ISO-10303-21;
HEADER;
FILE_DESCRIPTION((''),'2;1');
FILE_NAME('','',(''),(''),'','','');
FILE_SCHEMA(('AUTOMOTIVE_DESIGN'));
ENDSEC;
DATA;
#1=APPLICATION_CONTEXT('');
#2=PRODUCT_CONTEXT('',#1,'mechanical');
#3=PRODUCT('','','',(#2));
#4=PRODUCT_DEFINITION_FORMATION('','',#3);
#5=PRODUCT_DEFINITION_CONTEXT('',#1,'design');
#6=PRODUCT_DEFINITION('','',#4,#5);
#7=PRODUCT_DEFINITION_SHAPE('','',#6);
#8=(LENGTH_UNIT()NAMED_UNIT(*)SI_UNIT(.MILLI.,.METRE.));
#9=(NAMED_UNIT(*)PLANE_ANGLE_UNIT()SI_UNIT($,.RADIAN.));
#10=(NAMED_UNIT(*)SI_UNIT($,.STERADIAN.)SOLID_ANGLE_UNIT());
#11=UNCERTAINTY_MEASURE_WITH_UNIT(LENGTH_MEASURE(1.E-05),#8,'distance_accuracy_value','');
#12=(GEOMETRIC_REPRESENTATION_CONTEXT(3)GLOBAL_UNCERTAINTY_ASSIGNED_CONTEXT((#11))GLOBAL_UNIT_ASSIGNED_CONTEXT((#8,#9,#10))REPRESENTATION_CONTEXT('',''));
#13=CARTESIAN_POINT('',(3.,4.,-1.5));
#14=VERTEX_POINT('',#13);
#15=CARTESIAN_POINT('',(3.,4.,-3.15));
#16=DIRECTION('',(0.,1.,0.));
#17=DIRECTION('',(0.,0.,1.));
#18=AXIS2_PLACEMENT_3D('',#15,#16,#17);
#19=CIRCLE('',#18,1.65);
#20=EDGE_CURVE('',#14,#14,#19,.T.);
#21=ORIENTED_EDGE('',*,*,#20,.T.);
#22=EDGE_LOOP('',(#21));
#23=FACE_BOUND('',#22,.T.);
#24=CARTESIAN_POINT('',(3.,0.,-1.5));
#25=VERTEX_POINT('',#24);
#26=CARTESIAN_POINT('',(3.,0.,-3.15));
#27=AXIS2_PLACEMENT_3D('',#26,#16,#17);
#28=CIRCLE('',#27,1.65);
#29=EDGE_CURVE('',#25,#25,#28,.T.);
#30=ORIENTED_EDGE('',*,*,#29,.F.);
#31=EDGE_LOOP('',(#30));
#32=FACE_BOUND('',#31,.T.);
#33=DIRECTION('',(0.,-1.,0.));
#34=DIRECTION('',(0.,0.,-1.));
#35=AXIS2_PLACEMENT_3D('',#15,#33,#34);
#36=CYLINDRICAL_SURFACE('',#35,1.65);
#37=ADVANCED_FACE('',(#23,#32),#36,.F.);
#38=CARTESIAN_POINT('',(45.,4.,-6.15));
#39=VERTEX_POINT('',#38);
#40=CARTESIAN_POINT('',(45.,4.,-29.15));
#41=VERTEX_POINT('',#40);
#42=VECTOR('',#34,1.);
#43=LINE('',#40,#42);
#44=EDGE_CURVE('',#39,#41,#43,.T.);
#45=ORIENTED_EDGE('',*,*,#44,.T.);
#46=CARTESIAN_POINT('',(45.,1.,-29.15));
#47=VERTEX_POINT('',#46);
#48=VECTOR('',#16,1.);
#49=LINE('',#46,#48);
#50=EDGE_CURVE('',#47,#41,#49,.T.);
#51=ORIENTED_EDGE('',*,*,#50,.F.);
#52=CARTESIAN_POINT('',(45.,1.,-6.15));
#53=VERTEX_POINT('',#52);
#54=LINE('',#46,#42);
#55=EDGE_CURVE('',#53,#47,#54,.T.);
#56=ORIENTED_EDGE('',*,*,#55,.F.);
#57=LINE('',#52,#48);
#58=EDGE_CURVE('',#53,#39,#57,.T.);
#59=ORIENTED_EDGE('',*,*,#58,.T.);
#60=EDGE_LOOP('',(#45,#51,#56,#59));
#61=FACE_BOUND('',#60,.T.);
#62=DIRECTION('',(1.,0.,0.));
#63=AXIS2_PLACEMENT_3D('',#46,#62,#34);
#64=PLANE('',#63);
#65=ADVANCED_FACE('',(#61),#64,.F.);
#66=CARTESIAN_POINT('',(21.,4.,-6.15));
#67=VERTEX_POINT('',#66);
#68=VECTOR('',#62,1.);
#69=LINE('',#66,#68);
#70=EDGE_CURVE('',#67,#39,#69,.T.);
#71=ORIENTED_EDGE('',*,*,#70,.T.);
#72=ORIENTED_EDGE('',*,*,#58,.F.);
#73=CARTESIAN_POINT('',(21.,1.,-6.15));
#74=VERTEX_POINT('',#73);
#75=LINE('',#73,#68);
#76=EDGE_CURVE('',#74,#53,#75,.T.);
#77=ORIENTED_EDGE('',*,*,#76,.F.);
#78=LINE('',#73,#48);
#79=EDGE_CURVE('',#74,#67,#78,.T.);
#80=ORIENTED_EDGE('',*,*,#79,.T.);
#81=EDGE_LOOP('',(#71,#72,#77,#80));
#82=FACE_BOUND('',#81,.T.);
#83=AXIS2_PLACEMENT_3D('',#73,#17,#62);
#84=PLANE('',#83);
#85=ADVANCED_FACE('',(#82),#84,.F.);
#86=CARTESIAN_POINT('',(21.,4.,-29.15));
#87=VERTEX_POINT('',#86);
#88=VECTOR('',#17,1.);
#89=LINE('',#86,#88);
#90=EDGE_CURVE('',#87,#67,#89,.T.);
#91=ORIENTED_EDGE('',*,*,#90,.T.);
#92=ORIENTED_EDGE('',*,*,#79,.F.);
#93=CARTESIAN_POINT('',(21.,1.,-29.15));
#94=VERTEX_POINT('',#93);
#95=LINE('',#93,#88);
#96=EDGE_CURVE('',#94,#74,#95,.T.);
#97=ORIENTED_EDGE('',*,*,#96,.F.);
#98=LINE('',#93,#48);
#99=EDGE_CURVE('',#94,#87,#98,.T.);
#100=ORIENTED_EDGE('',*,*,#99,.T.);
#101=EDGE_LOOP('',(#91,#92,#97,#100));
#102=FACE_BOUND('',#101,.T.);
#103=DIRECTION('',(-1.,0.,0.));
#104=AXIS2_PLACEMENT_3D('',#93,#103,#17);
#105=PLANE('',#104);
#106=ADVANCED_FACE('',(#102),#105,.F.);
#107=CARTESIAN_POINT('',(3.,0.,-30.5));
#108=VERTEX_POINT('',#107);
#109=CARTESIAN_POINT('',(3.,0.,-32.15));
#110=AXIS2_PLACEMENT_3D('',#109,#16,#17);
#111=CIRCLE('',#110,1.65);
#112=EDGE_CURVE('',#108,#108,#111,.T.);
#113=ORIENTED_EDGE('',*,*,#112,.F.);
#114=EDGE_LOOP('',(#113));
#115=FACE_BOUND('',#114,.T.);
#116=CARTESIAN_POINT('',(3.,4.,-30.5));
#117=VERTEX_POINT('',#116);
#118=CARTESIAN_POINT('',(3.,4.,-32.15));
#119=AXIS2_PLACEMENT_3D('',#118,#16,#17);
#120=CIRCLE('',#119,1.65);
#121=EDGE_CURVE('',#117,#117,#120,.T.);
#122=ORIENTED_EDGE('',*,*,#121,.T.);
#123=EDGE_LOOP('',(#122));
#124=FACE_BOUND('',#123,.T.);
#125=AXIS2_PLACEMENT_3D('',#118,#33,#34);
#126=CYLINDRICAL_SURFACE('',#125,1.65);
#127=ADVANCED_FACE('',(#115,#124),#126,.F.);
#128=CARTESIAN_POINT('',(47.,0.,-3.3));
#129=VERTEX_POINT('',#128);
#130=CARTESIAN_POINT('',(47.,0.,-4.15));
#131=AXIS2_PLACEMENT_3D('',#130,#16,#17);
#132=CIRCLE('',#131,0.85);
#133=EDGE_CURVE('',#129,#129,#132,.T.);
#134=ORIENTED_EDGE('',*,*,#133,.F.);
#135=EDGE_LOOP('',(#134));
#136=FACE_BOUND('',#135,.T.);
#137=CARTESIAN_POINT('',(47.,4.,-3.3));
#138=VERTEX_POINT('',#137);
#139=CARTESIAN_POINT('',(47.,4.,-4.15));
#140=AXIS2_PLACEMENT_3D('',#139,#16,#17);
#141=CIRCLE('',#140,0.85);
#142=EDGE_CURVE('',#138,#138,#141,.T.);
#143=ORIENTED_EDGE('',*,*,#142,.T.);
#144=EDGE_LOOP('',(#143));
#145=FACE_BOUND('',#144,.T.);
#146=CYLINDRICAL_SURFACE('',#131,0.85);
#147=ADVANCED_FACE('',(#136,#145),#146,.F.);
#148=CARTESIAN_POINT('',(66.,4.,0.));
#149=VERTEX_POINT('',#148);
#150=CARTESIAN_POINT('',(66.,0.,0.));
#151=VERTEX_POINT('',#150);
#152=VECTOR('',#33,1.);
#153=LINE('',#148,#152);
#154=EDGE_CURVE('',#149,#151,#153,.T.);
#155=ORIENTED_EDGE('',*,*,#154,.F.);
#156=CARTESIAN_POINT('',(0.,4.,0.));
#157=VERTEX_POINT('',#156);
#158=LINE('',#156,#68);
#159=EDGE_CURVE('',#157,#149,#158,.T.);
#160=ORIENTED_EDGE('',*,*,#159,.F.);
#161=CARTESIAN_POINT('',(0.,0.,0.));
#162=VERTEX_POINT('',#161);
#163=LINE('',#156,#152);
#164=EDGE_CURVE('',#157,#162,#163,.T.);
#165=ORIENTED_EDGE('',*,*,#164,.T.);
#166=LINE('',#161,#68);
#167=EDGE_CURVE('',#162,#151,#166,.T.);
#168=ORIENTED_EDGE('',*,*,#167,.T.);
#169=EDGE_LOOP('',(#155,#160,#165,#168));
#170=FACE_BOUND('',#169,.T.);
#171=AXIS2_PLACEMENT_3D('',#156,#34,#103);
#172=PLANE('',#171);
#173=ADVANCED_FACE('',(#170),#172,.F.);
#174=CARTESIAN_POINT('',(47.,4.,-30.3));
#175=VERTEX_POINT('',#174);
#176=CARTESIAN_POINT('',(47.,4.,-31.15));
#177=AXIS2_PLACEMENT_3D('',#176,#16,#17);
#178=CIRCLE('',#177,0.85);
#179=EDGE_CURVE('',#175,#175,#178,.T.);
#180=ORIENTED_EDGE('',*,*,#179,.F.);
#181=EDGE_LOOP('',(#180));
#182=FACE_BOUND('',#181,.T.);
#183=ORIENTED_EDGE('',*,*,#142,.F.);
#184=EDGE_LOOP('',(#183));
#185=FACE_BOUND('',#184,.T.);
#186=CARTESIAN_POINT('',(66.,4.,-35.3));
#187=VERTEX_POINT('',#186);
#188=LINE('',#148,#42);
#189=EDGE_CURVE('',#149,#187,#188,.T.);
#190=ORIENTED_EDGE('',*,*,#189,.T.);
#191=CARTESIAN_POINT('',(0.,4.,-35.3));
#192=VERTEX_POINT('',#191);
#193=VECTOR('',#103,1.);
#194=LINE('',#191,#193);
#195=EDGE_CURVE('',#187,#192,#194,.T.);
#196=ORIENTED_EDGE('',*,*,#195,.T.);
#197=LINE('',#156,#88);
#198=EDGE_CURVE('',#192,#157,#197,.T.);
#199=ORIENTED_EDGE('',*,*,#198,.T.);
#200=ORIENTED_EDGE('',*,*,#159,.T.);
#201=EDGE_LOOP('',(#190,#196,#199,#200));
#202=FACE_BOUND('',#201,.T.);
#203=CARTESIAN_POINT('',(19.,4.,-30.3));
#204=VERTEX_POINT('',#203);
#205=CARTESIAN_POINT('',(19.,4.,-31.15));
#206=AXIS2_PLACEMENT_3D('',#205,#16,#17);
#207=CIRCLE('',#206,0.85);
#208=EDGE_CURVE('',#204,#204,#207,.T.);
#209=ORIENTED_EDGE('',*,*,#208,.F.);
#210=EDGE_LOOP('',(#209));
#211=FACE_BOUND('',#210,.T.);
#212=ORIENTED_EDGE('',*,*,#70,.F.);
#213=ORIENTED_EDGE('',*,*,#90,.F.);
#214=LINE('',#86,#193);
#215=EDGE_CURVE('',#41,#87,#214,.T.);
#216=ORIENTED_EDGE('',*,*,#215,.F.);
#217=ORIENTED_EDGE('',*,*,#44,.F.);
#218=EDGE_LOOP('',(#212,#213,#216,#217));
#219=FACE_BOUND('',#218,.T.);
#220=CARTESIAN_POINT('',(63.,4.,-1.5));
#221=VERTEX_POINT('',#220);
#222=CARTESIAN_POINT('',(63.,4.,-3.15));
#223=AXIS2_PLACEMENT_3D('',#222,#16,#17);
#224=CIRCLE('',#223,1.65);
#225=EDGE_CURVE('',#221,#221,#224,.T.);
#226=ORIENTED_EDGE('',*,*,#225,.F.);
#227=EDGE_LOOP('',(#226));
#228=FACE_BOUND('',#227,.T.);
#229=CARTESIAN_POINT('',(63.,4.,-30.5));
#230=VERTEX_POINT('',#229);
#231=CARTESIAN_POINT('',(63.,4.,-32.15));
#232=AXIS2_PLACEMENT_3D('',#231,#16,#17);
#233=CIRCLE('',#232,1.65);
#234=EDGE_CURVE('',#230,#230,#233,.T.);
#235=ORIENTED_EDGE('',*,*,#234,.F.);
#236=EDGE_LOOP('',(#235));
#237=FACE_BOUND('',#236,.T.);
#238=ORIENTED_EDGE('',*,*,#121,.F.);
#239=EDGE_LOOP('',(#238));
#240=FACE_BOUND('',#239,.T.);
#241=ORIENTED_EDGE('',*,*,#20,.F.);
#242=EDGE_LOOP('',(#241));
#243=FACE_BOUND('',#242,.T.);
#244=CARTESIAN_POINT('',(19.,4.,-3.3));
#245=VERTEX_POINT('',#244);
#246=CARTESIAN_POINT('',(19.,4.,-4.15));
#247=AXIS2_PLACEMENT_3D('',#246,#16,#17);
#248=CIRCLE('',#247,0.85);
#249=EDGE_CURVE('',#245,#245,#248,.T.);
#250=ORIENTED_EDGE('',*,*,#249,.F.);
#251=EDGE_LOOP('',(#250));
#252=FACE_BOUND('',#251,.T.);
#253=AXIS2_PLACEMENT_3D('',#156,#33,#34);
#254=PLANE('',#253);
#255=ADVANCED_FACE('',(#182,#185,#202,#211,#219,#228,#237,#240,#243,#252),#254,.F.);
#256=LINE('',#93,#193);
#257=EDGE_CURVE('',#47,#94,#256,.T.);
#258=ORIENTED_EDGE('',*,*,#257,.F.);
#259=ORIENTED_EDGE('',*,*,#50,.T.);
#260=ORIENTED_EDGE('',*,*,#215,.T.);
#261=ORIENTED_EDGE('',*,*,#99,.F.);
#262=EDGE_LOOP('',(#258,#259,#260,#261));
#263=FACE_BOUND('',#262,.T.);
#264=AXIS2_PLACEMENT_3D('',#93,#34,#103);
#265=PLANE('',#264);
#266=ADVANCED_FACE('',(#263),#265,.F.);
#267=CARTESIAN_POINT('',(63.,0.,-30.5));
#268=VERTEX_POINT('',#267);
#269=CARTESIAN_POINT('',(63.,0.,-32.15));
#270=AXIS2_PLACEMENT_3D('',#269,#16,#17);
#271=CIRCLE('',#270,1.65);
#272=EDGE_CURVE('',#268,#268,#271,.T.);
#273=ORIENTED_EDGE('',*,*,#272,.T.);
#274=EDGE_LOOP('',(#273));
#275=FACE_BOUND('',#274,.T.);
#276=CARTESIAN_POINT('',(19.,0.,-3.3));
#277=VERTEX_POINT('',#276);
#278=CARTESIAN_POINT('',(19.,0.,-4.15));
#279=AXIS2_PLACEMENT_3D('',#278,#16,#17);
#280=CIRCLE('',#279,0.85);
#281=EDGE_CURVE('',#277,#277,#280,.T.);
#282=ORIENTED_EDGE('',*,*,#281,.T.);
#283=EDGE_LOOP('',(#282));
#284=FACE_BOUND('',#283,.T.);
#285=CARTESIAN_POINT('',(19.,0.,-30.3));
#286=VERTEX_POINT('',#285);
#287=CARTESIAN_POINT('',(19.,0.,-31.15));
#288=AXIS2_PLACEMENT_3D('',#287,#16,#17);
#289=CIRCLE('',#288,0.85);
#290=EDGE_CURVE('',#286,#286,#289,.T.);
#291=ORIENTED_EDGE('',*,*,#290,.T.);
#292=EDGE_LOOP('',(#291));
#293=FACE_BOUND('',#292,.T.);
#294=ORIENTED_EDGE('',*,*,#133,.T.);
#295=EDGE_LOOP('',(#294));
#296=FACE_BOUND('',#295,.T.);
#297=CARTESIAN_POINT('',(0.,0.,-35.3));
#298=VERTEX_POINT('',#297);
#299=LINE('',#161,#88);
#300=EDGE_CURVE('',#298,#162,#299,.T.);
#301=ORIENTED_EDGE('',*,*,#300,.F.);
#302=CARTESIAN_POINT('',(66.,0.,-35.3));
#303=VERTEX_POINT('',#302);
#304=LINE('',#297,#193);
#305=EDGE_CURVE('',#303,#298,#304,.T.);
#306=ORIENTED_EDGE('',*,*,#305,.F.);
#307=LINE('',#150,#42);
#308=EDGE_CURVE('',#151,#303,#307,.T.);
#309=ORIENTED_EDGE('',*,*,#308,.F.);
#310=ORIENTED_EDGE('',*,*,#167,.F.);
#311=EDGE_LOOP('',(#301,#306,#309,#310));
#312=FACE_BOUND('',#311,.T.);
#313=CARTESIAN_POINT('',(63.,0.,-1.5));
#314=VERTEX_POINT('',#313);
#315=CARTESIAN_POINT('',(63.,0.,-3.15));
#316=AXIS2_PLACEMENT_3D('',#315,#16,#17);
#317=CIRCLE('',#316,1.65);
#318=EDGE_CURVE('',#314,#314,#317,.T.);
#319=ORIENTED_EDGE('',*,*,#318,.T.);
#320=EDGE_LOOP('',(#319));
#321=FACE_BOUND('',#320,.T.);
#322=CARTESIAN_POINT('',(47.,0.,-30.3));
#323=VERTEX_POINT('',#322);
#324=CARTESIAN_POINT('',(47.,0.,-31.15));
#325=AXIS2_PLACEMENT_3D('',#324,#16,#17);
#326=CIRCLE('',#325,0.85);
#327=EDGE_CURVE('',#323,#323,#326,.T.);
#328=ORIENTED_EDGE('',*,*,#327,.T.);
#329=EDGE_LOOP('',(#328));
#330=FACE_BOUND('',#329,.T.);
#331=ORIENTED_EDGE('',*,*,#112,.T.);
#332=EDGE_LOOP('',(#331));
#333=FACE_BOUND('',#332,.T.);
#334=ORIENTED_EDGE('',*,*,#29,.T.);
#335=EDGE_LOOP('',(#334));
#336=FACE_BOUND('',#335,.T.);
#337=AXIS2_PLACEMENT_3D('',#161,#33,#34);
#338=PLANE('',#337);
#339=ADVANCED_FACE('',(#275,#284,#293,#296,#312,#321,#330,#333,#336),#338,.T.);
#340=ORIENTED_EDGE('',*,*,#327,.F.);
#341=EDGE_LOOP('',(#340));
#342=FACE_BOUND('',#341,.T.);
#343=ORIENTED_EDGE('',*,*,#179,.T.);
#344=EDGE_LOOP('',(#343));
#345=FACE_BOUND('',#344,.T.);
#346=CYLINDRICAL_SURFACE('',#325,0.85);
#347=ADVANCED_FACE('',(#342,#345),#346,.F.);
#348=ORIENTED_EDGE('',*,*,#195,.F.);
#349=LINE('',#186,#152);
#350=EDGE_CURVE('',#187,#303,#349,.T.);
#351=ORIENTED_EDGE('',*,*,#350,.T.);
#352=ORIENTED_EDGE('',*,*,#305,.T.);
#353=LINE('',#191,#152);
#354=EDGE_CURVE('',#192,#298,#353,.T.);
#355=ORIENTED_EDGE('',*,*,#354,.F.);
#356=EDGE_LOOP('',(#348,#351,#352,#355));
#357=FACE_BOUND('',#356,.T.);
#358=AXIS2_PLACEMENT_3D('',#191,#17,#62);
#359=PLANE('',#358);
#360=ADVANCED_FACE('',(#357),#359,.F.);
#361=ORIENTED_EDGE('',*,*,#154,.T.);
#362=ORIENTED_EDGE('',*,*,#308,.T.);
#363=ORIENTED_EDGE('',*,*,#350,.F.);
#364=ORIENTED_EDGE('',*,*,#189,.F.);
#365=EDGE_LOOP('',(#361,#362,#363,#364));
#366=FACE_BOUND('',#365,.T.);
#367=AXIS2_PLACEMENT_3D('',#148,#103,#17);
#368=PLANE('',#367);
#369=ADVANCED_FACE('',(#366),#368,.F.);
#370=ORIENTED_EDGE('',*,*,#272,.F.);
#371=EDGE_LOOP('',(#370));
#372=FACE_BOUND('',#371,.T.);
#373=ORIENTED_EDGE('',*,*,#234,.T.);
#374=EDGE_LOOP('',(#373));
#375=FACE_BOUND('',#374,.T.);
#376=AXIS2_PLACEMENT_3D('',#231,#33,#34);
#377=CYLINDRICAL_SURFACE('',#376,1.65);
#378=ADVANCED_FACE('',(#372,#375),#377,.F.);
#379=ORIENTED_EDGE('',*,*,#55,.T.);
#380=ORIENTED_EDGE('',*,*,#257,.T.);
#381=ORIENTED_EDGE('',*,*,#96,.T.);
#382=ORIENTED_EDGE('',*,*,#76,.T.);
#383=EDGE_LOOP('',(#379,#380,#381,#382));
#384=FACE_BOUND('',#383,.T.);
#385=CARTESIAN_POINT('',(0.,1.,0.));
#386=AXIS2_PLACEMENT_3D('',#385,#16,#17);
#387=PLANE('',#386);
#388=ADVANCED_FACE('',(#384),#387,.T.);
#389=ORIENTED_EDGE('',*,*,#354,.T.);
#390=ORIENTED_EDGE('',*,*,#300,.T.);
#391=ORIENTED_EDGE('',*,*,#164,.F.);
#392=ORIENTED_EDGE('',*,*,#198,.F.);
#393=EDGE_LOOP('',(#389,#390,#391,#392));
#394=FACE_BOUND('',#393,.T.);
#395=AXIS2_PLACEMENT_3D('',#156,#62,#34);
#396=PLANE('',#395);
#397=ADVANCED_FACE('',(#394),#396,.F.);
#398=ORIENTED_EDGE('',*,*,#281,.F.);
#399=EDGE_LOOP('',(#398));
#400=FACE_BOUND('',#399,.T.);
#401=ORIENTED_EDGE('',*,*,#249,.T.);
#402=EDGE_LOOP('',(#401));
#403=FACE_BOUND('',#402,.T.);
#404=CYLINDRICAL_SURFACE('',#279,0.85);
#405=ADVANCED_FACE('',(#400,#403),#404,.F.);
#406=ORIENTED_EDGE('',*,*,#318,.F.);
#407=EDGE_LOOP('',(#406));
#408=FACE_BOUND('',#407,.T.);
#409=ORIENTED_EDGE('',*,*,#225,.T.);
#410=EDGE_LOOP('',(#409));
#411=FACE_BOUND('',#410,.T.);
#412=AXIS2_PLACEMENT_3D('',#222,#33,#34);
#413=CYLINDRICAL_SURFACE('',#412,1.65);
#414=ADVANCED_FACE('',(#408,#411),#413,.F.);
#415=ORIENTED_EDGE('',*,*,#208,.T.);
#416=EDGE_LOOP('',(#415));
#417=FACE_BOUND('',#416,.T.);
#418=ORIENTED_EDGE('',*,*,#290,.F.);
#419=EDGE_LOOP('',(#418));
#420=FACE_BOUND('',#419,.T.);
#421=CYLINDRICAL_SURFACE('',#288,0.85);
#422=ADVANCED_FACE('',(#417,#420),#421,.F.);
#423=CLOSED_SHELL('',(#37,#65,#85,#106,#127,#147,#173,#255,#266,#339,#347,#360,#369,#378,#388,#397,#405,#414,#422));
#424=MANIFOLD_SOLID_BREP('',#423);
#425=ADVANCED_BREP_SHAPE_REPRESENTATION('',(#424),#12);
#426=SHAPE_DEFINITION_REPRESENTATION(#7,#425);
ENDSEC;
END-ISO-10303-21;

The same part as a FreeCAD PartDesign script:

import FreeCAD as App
import Part
import Sketcher
from FreeCAD import Vector
Q = App.Units.Quantity


def add_polygon(sketch, points):
    """Adds a closed chain of lines whose ends are joined by coincident constraints."""
    first, n = sketch.GeometryCount, len(points)
    for a, b in zip(points, points[1:] + points[:1]):
        sketch.addGeometry(Part.LineSegment(App.Vector(*a, 0), App.Vector(*b, 0)), False)
    for i in range(n):
        sketch.addConstraint(Sketcher.Constraint("Coincident", first + i, 2, first + (i + 1) % n, 1))

doc = App.newDocument("Part")
body = doc.addObject("PartDesign::Body", "Body")

sketch1 = body.newObject("Sketcher::SketchObject", "Sketch")
sketch1.AttachmentSupport = (doc.getObject("XZ_Plane"), [""])
sketch1.MapMode = "FlatFace"
add_polygon(sketch1, [(0, -35.3), (0, 0), (66, 0), (66, -35.3)])
sketch1.addGeometry(Part.Circle(Vector(3, -3.15, 0), Vector(0, 0, 1), 1.65), False)
sketch1.addGeometry(Part.Circle(Vector(63, -3.15, 0), Vector(0, 0, 1), 1.65), False)
sketch1.addGeometry(Part.Circle(Vector(3, -32.15, 0), Vector(0, 0, 1), 1.65), False)
sketch1.addGeometry(Part.Circle(Vector(63, -32.15, 0), Vector(0, 0, 1), 1.65), False)
sketch1.addConstraint([
    Sketcher.Constraint("Vertical", 0),
    Sketcher.Constraint("Horizontal", 1),
    Sketcher.Constraint("Vertical", 2),
    Sketcher.Constraint("Horizontal", 3),
    Sketcher.Constraint("Coincident", 0, 2, -1, 1),
    Sketcher.Constraint("Equal", 4, 5),
    Sketcher.Constraint("Equal", 5, 6),
    Sketcher.Constraint("Equal", 6, 7),
    Sketcher.Constraint("Horizontal", 4, 3, 5, 3),
    Sketcher.Constraint("Horizontal", 6, 3, 7, 3),
    Sketcher.Constraint("Vertical", 4, 3, 6, 3),
    Sketcher.Constraint("Vertical", 5, 3, 7, 3),
    Sketcher.Constraint("Diameter", 4, Q("3.3 mm")),
    Sketcher.Constraint("DistanceX", 1, 1, 1, 2, Q("66 mm")),
    Sketcher.Constraint("DistanceY", 0, 1, 0, 2, Q("35.3 mm")),
    Sketcher.Constraint("DistanceX", -1, 1, 4, 3, Q("3 mm")),
    Sketcher.Constraint("DistanceX", -1, 1, 5, 3, Q("63 mm")),
    Sketcher.Constraint("DistanceY", 6, 3, 4, 3, Q("29 mm")),
    Sketcher.Constraint("DistanceY", 4, 3, -1, 1, Q("3.15 mm")),
])
pad1 = body.newObject("PartDesign::Pad", "Pad")
pad1.Profile = sketch1
pad1.Length = 4
pad1.Reversed = True

sketch2 = body.newObject("Sketcher::SketchObject", "Sketch001")
sketch2.AttachmentSupport = (doc.getObject("XZ_Plane"), [""])
sketch2.MapMode = "FlatFace"
sketch2.AttachmentOffset = App.Placement(Vector(0, 0, -4), App.Rotation())
sketch2.addGeometry([
    Part.Circle(Vector(19, -31.15, 0), Vector(0, 0, 1), 0.85),
    Part.Circle(Vector(47, -31.15, 0), Vector(0, 0, 1), 0.85),
    Part.Circle(Vector(47, -4.15, 0), Vector(0, 0, 1), 0.85),
    Part.Circle(Vector(19, -4.15, 0), Vector(0, 0, 1), 0.85),
], False)
sketch2.addConstraint([
    Sketcher.Constraint("Equal", 0, 1),
    Sketcher.Constraint("Equal", 1, 2),
    Sketcher.Constraint("Equal", 2, 3),
    Sketcher.Constraint("Horizontal", 0, 3, 1, 3),
    Sketcher.Constraint("Horizontal", 2, 3, 3, 3),
    Sketcher.Constraint("Vertical", 1, 3, 2, 3),
    Sketcher.Constraint("Vertical", 0, 3, 3, 3),
    Sketcher.Constraint("Diameter", 0, Q("1.7 mm")),
    Sketcher.Constraint("DistanceX", -1, 1, 0, 3, Q("19 mm")),
    Sketcher.Constraint("DistanceX", -1, 1, 1, 3, Q("47 mm")),
    Sketcher.Constraint("DistanceY", 1, 3, 2, 3, Q("27 mm")),
    Sketcher.Constraint("DistanceY", 0, 3, -1, 1, Q("31.15 mm")),
])
pocket1 = body.newObject("PartDesign::Pocket", "Pocket")
pocket1.Profile = sketch2
pocket1.Length = 4
pocket1.Reversed = True

sketch3 = body.newObject("Sketcher::SketchObject", "Sketch002")
sketch3.AttachmentSupport = (doc.getObject("XZ_Plane"), [""])
sketch3.MapMode = "FlatFace"
sketch3.AttachmentOffset = App.Placement(Vector(0, 0, -4), App.Rotation())
add_polygon(sketch3, [(21, -29.15), (21, -6.15), (45, -6.15), (45, -29.15)])
sketch3.addConstraint([
    Sketcher.Constraint("Vertical", 0),
    Sketcher.Constraint("Horizontal", 1),
    Sketcher.Constraint("Vertical", 2),
    Sketcher.Constraint("Horizontal", 3),
    Sketcher.Constraint("DistanceX", 1, 1, 1, 2, Q("24 mm")),
    Sketcher.Constraint("DistanceY", 0, 1, 0, 2, Q("23 mm")),
    Sketcher.Constraint("DistanceX", -1, 1, 0, 2, Q("21 mm")),
    Sketcher.Constraint("DistanceY", 0, 2, -1, 1, Q("6.15 mm")),
])
pocket2 = body.newObject("PartDesign::Pocket", "Pocket001")
pocket2.Profile = sketch3
pocket2.Length = 3
pocket2.Reversed = True

doc.recompute()
